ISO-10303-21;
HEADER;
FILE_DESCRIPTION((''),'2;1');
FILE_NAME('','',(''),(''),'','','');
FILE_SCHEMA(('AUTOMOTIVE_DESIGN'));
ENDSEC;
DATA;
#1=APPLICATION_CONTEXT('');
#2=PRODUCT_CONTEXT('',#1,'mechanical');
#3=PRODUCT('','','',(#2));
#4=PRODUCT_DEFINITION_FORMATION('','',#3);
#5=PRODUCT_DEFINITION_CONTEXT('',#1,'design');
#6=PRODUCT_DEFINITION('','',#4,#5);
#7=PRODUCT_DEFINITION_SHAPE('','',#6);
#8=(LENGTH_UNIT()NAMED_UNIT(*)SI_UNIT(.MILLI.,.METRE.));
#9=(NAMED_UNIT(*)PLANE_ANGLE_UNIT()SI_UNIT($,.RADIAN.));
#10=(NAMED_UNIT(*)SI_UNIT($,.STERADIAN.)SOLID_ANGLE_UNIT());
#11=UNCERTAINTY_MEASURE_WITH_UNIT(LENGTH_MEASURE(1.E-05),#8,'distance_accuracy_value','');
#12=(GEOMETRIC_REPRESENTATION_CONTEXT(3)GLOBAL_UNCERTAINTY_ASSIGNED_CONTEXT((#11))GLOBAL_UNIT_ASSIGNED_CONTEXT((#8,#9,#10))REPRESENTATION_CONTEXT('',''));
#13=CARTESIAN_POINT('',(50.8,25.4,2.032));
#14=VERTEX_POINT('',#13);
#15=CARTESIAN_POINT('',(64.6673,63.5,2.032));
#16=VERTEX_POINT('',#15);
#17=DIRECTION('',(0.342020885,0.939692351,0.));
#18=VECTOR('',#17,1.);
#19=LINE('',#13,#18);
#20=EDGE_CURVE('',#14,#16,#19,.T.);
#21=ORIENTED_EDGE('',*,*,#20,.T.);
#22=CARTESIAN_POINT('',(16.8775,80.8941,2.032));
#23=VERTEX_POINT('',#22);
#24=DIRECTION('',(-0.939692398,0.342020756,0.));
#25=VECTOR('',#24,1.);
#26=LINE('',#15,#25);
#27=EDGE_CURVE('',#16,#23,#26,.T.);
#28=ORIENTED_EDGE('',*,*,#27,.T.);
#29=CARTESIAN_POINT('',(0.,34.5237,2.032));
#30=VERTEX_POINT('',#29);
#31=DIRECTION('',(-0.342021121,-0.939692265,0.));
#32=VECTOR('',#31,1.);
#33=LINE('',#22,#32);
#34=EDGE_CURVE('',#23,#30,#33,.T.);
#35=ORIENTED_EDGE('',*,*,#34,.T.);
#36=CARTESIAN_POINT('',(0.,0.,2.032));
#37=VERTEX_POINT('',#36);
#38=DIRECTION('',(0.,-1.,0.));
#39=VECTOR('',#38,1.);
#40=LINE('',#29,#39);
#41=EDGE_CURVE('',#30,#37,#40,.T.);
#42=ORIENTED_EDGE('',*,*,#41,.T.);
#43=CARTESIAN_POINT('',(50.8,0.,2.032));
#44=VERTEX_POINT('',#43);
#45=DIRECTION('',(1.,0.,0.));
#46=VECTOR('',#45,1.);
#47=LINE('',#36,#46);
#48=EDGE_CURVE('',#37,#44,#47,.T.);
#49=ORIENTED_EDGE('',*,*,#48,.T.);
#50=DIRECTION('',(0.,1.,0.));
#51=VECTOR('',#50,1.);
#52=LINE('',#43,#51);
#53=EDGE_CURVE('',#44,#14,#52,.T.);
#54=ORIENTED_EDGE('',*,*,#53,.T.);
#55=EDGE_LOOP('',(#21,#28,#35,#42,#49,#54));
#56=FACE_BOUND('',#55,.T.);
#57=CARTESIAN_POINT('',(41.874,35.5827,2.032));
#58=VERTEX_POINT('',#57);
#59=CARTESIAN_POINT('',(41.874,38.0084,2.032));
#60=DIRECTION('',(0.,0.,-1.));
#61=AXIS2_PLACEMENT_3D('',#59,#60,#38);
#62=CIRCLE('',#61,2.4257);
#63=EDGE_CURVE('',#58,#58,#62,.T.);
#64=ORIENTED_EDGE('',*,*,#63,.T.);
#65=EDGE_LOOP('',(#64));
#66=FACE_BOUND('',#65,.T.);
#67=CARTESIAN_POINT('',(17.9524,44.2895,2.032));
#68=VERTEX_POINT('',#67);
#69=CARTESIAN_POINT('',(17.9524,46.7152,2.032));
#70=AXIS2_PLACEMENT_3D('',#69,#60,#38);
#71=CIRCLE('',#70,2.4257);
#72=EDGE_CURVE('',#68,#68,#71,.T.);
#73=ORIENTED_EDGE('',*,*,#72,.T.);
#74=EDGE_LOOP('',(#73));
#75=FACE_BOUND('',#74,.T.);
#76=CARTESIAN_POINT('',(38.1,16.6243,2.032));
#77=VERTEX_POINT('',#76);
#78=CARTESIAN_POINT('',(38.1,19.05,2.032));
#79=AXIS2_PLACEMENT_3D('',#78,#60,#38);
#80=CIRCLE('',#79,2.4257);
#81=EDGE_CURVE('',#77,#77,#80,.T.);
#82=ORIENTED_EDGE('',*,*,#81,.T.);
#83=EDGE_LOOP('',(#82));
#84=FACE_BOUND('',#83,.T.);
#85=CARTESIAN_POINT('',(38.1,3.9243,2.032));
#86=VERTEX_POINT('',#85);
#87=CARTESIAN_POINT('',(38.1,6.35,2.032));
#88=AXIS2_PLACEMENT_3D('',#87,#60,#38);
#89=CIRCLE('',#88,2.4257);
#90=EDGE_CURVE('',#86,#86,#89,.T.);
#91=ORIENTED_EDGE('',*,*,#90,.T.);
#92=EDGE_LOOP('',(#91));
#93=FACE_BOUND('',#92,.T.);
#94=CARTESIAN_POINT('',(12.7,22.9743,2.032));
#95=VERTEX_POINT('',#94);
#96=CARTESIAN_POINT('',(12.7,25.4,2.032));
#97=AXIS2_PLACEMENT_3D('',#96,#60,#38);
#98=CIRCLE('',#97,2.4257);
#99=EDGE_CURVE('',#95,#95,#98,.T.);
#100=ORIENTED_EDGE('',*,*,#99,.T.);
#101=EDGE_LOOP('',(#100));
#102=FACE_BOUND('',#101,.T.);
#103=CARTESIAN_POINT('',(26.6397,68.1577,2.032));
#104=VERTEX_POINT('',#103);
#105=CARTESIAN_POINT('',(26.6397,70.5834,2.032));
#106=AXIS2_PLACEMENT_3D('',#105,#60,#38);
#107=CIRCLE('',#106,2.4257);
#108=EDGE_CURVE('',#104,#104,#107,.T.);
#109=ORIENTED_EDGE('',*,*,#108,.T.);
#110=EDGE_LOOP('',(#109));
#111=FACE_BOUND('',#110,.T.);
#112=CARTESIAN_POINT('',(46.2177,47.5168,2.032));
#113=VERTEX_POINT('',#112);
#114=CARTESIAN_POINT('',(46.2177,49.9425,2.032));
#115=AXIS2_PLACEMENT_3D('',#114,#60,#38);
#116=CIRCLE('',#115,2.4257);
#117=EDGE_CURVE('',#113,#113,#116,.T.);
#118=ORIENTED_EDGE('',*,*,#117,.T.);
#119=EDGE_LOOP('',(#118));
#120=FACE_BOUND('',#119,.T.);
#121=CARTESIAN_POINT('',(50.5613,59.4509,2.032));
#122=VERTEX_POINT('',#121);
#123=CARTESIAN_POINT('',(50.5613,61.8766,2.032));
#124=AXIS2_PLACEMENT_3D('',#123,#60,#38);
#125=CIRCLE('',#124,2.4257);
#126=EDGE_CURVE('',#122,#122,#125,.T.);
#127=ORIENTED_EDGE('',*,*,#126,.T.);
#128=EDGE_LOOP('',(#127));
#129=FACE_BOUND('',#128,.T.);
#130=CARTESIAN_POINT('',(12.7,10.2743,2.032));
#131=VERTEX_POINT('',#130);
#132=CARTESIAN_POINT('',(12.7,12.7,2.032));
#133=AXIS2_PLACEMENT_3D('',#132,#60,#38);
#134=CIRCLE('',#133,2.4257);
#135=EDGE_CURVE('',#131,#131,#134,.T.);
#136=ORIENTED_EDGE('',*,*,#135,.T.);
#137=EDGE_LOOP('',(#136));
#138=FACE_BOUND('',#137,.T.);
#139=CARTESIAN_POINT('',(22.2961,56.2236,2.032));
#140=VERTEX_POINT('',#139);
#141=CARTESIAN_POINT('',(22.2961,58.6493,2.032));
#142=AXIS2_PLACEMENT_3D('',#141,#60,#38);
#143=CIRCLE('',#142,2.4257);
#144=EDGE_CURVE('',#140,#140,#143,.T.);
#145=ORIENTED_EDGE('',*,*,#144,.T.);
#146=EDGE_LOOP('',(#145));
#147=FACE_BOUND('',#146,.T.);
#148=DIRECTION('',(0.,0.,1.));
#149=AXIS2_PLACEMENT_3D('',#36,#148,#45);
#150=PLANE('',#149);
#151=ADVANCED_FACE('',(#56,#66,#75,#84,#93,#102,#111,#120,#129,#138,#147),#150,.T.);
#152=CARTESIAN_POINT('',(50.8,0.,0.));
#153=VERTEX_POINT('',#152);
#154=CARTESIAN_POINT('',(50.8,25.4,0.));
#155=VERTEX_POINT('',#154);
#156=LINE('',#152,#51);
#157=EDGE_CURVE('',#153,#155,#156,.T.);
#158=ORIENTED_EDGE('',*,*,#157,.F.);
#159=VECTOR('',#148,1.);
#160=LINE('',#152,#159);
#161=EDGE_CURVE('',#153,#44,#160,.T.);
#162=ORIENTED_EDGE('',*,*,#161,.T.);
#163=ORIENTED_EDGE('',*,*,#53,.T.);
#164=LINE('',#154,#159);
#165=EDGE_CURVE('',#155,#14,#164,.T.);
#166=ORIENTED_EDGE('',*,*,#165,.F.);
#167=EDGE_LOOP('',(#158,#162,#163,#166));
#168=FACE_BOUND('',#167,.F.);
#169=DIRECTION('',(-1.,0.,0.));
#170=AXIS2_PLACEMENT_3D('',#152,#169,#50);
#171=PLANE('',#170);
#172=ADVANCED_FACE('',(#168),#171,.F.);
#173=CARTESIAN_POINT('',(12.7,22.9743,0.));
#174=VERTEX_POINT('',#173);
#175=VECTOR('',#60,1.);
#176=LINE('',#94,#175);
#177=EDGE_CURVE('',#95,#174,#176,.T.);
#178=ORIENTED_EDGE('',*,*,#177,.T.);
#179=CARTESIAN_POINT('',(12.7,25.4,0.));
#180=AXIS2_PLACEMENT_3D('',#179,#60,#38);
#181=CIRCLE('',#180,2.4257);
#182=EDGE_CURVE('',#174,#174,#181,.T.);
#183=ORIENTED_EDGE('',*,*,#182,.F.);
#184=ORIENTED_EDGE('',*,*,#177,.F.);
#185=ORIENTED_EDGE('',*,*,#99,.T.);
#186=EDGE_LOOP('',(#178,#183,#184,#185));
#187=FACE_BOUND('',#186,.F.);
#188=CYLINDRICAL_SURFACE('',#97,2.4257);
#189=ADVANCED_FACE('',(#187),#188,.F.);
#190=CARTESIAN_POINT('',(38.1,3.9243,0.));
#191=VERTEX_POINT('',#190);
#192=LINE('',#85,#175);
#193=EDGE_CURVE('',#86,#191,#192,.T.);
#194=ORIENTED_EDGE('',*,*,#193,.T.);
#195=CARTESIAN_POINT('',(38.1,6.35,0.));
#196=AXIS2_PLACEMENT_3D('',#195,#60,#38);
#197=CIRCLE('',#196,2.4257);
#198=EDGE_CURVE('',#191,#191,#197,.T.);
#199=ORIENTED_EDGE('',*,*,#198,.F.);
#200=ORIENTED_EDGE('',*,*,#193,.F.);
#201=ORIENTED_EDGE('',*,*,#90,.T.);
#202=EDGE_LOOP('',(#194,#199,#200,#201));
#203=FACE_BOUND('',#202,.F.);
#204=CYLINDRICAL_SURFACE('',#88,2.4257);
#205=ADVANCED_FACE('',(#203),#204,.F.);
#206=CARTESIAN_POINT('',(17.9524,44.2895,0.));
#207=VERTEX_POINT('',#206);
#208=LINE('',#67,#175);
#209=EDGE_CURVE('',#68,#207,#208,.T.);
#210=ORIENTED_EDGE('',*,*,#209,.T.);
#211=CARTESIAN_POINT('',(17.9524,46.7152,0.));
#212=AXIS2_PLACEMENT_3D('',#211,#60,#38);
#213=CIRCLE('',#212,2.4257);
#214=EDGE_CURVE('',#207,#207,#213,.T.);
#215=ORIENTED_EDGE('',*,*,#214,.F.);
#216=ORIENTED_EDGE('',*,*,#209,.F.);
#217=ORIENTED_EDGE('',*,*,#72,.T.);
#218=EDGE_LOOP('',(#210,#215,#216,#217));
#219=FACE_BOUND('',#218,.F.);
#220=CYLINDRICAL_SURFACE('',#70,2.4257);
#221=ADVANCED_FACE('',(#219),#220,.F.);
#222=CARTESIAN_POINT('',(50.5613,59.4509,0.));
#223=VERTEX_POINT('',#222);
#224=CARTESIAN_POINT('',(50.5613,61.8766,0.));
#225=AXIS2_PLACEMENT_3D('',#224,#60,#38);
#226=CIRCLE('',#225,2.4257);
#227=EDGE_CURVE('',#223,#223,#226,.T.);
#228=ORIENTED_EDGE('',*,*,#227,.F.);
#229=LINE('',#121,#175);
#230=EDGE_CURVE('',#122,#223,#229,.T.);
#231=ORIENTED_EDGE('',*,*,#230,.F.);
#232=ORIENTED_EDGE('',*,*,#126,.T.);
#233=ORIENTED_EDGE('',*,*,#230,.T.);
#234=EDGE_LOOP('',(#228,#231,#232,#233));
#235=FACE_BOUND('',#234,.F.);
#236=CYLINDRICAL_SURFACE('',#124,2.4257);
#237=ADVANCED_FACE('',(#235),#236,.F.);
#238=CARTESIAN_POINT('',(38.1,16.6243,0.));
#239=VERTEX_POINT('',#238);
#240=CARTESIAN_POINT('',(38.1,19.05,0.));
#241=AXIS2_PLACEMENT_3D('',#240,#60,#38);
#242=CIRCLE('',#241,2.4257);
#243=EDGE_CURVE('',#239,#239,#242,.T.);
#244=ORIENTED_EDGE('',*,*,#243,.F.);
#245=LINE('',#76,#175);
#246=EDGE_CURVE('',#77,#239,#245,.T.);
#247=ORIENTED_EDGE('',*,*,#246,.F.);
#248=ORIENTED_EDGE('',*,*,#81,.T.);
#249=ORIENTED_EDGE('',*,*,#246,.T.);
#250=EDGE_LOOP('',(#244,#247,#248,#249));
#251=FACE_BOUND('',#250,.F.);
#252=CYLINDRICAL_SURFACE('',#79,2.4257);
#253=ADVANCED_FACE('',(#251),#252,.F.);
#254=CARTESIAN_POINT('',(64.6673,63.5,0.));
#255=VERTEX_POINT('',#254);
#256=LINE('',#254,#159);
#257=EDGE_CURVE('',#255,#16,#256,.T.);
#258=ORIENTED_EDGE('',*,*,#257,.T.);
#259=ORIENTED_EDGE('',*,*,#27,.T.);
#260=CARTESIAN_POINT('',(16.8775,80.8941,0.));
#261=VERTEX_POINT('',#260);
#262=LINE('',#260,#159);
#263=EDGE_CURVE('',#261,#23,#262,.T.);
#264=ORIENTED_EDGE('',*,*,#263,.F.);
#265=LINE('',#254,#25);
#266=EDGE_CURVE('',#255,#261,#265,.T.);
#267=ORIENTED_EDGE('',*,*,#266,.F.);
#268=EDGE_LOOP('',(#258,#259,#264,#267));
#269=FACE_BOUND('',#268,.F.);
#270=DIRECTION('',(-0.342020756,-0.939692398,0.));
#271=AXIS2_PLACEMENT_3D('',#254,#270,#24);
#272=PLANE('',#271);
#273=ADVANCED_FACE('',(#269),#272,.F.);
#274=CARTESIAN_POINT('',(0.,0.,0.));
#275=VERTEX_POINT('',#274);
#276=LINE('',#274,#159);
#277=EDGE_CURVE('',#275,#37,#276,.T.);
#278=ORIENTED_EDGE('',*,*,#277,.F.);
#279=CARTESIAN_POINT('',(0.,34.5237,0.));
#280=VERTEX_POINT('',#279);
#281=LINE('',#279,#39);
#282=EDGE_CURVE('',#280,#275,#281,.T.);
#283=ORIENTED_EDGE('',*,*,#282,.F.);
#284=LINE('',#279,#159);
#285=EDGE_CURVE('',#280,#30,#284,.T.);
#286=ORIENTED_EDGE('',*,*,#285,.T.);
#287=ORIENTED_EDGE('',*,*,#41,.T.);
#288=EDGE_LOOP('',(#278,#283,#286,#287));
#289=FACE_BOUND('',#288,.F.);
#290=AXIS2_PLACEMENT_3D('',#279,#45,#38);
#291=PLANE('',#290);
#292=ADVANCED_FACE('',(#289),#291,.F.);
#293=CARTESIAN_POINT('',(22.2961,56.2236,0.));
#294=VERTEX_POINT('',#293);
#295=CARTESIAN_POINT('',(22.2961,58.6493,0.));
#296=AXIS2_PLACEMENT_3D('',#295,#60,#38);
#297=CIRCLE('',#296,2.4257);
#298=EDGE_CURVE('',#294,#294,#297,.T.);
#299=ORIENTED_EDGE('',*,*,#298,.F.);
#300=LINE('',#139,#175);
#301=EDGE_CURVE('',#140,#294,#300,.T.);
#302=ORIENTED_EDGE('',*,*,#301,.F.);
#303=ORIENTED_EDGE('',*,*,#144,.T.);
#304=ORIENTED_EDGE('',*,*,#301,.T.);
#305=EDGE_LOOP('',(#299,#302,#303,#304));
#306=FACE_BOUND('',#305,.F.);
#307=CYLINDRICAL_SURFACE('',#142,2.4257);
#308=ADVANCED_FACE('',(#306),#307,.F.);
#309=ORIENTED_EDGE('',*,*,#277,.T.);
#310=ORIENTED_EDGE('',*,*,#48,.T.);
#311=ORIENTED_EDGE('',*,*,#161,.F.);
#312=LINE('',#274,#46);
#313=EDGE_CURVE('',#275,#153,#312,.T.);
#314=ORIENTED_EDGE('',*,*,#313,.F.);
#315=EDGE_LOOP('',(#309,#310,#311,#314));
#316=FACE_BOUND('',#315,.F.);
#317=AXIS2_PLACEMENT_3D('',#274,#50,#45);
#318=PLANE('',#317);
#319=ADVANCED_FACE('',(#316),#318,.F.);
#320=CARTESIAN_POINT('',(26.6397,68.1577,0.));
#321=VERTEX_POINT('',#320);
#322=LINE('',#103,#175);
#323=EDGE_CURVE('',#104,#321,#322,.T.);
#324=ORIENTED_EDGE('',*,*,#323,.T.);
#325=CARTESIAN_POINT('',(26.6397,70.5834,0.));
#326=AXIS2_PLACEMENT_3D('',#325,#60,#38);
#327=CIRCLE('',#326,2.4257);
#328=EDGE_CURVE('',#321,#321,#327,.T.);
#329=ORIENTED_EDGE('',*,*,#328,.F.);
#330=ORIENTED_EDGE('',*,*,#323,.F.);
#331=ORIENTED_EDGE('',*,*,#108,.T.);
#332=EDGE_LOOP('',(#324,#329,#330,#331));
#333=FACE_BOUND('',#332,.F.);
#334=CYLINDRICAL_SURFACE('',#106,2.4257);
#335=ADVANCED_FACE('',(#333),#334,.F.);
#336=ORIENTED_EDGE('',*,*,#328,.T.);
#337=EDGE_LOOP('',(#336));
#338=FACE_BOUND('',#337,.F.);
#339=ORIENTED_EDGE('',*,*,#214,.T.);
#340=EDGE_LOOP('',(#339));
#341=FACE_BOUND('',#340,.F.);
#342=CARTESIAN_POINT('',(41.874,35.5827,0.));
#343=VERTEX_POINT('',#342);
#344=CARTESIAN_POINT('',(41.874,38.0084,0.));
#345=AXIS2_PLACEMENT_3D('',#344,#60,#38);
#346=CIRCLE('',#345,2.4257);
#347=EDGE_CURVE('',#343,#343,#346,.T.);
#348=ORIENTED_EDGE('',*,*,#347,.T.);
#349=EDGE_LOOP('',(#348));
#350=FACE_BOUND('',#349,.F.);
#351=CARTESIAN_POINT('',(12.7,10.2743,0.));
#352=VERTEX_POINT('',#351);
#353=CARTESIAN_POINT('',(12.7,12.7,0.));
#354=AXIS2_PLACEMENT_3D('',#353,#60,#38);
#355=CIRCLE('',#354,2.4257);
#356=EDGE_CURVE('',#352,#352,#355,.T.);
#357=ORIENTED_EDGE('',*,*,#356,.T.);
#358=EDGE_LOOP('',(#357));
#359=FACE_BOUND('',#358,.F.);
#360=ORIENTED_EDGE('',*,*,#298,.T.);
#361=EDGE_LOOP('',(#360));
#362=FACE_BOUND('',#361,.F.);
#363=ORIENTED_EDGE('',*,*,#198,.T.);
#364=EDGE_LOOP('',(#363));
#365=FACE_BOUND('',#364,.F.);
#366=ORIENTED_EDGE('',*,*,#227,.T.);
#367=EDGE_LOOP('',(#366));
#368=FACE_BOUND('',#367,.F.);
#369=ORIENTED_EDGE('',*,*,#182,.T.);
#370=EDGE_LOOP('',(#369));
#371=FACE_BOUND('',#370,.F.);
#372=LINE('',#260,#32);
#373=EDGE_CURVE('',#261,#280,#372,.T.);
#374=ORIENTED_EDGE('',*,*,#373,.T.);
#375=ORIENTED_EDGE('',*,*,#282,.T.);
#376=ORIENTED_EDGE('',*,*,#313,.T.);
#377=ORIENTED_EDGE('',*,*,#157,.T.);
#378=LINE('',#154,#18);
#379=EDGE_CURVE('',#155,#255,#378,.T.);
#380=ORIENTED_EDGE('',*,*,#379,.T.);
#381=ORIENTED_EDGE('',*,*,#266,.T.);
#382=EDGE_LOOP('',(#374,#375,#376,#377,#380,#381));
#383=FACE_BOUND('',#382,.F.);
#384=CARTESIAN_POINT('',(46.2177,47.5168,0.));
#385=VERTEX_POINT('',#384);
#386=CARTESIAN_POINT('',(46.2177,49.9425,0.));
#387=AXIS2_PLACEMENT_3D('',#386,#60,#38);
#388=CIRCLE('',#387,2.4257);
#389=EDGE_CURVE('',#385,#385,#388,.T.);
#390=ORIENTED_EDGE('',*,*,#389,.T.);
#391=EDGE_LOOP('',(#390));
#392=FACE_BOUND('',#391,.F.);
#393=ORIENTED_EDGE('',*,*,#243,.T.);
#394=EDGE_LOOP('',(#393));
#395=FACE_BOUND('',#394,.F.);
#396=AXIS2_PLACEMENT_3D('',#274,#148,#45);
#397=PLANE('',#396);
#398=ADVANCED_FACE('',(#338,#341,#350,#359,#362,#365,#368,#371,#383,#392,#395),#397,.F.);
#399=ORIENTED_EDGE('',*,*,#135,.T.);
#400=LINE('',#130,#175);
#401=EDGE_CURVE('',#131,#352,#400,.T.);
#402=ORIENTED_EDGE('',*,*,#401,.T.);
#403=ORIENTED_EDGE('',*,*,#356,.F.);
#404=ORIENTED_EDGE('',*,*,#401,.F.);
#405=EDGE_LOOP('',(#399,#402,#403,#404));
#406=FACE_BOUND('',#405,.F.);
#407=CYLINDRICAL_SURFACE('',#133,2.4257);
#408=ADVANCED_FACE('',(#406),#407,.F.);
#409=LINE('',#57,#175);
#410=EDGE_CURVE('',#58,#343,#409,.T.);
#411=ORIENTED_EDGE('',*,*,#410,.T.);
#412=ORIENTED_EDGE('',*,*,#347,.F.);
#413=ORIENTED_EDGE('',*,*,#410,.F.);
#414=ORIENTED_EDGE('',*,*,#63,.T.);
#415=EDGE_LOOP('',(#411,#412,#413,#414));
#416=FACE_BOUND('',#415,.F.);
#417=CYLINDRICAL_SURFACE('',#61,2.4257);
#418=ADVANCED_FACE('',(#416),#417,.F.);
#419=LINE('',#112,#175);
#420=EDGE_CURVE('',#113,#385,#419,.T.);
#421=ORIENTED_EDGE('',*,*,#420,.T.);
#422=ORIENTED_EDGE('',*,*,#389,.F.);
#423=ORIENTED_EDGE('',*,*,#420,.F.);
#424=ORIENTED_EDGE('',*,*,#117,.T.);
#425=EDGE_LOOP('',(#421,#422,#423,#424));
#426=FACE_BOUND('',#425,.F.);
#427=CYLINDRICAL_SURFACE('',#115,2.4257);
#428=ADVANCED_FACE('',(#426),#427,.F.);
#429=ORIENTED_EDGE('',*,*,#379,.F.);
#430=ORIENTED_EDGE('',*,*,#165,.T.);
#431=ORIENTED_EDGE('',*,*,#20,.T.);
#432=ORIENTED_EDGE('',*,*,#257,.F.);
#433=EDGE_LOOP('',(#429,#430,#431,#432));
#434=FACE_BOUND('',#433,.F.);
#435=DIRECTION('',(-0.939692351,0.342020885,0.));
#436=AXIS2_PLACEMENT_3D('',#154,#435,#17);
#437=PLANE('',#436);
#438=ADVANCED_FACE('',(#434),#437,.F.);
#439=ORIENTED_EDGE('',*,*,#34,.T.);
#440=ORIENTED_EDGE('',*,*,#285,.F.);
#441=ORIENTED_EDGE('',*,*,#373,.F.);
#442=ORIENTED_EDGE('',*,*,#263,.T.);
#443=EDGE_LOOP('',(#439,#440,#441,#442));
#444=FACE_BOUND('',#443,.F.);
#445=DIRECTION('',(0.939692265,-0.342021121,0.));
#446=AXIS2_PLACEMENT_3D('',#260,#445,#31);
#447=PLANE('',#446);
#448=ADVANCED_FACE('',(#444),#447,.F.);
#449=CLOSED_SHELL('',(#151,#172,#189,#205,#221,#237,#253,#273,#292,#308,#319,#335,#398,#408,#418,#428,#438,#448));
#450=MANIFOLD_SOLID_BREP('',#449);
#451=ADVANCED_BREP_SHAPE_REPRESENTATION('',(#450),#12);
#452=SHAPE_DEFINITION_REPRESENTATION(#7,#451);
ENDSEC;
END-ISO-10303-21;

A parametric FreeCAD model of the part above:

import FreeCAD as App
import Part
import Sketcher
Q = App.Units.Quantity


def add_polygon(sketch, points):
    """Adds a closed chain of lines whose ends are joined by coincident constraints."""
    first, n = sketch.GeometryCount, len(points)
    for a, b in zip(points, points[1:] + points[:1]):
        sketch.addGeometry(Part.LineSegment(App.Vector(*a, 0), App.Vector(*b, 0)), False)
    for i in range(n):
        sketch.addConstraint(Sketcher.Constraint("Coincident", first + i, 2, first + (i + 1) % n, 1))

doc = App.newDocument("Part")
body = doc.addObject("PartDesign::Body", "Body")

# Sketch on XY plane
sketch1 = doc.addObject("Sketcher::SketchObject", "Sketch")
body.addObject(sketch1)
sketch1.AttachmentSupport = (doc.XY_Plane, [""])
sketch1.MapMode = "FlatFace"
add_polygon(sketch1, [(0, 35), (0, 0), (51, 0), (51, 25), (65, 64), (17, 81)])  # lines 0-5
sketch1.addConstraint([
    Sketcher.Constraint("Vertical", 0),
    Sketcher.Constraint("Horizontal", 1),
    Sketcher.Constraint("Vertical", 2),
    Sketcher.Constraint("Coincident", 0, 2, -1, 1),
    Sketcher.Constraint("Perpendicular", 3, 4),
    Sketcher.Constraint("Perpendicular", 4, 5),
    Sketcher.Constraint("DistanceX", 1, 1, 1, 2, Q("2 in")),
    Sketcher.Constraint("DistanceY", 2, 1, 2, 2, Q("1 in")),
    Sketcher.Constraint("Angle", 4, Q("160 deg")),
    Sketcher.Constraint("DistanceY", 2, 2, 3, 2, Q("1.5 in")),
    Sketcher.Constraint("DistanceY", 0, 2, 0, 1, Q("1.3592 in")),
])
pad1 = doc.addObject("PartDesign::Pad", "Pad")
body.addObject(pad1)
pad1.Profile = sketch1
pad1.Length = Q("0.08 in")

# Sketch on XY plane
sketch2 = doc.addObject("Sketcher::SketchObject", "Sketch001")
body.addObject(sketch2)
sketch2.AttachmentSupport = (doc.XY_Plane, [""])
sketch2.MapMode = "FlatFace"
sketch2.AttachmentOffset = App.Placement(App.Vector(0, 0, 0.08 * 25.4), App.Rotation())
sketch2.addGeometry([
    Part.Circle(App.Vector(41.9, 38, 0), App.Vector(0, 0, 1), 2.4),  # 0
    Part.Circle(App.Vector(46.2, 49.9, 0), App.Vector(0, 0, 1), 2.4),  # 1
    Part.Circle(App.Vector(50.6, 61.9, 0), App.Vector(0, 0, 1), 2.4),  # 2
    Part.Circle(App.Vector(18, 46.7, 0), App.Vector(0, 0, 1), 2.4),  # 3
    Part.Circle(App.Vector(22.3, 58.6, 0), App.Vector(0, 0, 1), 2.4),  # 4
    Part.Circle(App.Vector(26.6, 70.6, 0), App.Vector(0, 0, 1), 2.4),  # 5
    Part.Circle(App.Vector(38.1, 6.3, 0), App.Vector(0, 0, 1), 2.4),  # 6
    Part.Circle(App.Vector(38.1, 19.1, 0), App.Vector(0, 0, 1), 2.4),  # 7
    Part.Circle(App.Vector(12.7, 25.4, 0), App.Vector(0, 0, 1), 2.4),  # 8
    Part.Circle(App.Vector(12.7, 12.7, 0), App.Vector(0, 0, 1), 2.4),  # 9
], False)
sketch2.addConstraint([
    Sketcher.Constraint("Equal", 0, 1),
    Sketcher.Constraint("Equal", 1, 2),
    Sketcher.Constraint("Equal", 2, 3),
    Sketcher.Constraint("Equal", 3, 4),
    Sketcher.Constraint("Equal", 4, 5),
    Sketcher.Constraint("Equal", 5, 6),
    Sketcher.Constraint("Equal", 6, 7),
    Sketcher.Constraint("Equal", 7, 8),
    Sketcher.Constraint("Equal", 8, 9),
    Sketcher.Constraint("Vertical", 6, 3, 7, 3),
    Sketcher.Constraint("Vertical", 8, 3, 9, 3),
    Sketcher.Constraint("Diameter", 0, Q("0.191 in")),
    Sketcher.Constraint("DistanceY", -1, 1, 8, 3, Q("1 in")),
    Sketcher.Constraint("DistanceX", 8, 3, 7, 3, Q("1 in")),
    Sketcher.Constraint("DistanceX", -1, 1, 6, 3, Q("1.5 in")),
    Sketcher.Constraint("DistanceY", -1, 1, 9, 3, Q("0.5 in")),
    Sketcher.Constraint("DistanceY", 6, 3, 7, 3, Q("0.5 in")),
    Sketcher.Constraint("DistanceY", -1, 1, 6, 3, Q("0.25 in")),
    Sketcher.Constraint("DistanceX", 0, 3, 1, 3, Q("0.171 in")),
    Sketcher.Constraint("DistanceX", 1, 3, 2, 3, Q("0.171 in")),
    Sketcher.Constraint("DistanceX", 3, 3, 4, 3, Q("0.171 in")),
    Sketcher.Constraint("DistanceX", 4, 3, 5, 3, Q("0.171 in")),
    Sketcher.Constraint("DistanceY", -1, 1, 0, 3, Q("1.4964 in")),
    Sketcher.Constraint("DistanceX", -1, 1, 1, 3, Q("1.8196 in")),
    Sketcher.Constraint("DistanceX", -1, 1, 4, 3, Q("0.8778 in")),
    Sketcher.Constraint("DistanceY", 0, 3, 2, 3, Q("0.9397 in")),
    Sketcher.Constraint("DistanceY", 3, 3, 2, 3, Q("0.5969 in")),
    Sketcher.Constraint("DistanceY", 3, 3, 5, 3, Q("0.9397 in")),
    Sketcher.Constraint("DistanceY", -1, 1, 1, 3, Q("49.9425 mm")),
    Sketcher.Constraint("DistanceY", -1, 1, 4, 3, Q("58.6493 mm")),
])
doc.recompute()
hole = doc.addObject("PartDesign::Hole", "Hole")
body.addObject(hole)
hole.Profile = sketch2
hole.ThreadType = "None"
hole.Diameter = Q("0.191 in")
hole.DepthType = "ThroughAll"

doc.recompute()
